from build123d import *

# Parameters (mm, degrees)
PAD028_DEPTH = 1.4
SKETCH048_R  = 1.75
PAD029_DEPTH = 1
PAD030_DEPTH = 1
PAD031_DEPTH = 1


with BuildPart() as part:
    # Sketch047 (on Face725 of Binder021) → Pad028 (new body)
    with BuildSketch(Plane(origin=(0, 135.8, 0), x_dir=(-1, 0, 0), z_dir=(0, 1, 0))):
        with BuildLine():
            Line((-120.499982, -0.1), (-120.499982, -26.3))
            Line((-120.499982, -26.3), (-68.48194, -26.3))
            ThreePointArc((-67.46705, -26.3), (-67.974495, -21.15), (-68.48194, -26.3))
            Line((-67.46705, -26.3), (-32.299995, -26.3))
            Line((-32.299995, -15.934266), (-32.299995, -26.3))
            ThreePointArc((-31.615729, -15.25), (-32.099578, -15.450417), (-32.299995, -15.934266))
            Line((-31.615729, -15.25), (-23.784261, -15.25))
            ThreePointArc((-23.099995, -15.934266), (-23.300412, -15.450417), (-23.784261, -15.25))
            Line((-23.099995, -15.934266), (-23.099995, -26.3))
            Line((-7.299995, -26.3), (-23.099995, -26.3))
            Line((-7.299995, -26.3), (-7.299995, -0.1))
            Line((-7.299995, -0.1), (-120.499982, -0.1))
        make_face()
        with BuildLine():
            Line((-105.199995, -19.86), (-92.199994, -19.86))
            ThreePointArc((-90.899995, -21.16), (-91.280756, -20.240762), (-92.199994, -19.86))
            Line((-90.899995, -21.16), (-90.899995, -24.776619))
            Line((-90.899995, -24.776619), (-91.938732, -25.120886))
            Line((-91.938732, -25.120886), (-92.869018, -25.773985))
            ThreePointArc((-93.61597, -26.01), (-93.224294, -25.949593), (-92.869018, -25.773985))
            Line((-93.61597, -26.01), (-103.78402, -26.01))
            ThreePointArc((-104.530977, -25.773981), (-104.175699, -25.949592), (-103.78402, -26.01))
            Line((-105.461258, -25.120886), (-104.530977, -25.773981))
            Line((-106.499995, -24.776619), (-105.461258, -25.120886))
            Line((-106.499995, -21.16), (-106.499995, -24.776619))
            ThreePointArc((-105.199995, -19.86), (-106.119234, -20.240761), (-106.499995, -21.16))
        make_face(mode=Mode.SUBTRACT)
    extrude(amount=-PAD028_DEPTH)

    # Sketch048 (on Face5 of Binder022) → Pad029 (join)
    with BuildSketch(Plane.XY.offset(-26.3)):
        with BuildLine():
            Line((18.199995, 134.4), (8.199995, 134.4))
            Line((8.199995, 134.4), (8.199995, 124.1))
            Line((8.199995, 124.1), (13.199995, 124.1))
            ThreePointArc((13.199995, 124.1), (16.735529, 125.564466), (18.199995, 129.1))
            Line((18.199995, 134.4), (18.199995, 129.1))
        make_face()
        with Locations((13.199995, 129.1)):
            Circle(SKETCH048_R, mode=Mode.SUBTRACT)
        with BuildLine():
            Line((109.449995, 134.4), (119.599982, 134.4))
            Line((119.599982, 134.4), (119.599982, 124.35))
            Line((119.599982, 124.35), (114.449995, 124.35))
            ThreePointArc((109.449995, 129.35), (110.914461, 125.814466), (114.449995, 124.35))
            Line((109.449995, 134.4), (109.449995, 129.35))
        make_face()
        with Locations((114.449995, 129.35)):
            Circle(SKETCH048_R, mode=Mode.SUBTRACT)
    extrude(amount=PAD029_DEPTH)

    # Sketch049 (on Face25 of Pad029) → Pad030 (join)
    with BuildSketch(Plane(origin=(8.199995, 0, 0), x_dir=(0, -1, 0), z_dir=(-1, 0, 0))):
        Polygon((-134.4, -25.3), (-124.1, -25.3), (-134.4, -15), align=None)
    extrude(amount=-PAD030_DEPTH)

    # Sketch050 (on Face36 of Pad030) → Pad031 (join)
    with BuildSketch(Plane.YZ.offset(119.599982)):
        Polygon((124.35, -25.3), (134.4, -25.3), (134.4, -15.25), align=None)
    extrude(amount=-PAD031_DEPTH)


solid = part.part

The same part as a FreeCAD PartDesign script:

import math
import FreeCAD as App
import Part
import Sketcher


def add_polygon(sketch, points):
    """Adds a closed chain of lines whose ends are joined by coincident constraints."""
    first, n = sketch.GeometryCount, len(points)
    for a, b in zip(points, points[1:] + points[:1]):
        sketch.addGeometry(Part.LineSegment(App.Vector(*a, 0), App.Vector(*b, 0)), False)
    for i in range(n):
        sketch.addConstraint(Sketcher.Constraint("Coincident", first + i, 2, first + (i + 1) % n, 1))

doc = App.newDocument("Part")
body = doc.addObject("PartDesign::Body", "Body")

sketch1 = body.newObject("Sketcher::SketchObject", "Sketch")
sketch1.AttachmentSupport = (doc.getObject("XZ_Plane"), [""])
sketch1.MapMode = "FlatFace"
sketch1.AttachmentOffset = App.Placement(App.Vector(0, 0, -135.8), App.Rotation())
sketch1.addGeometry(Part.LineSegment(App.Vector(120.5, -0.1, 0), App.Vector(120.5, -26.3, 0)), False)
sketch1.addGeometry(Part.LineSegment(App.Vector(120.5, -26.3, 0), App.Vector(68.5, -26.3, 0)), False)
sketch1.addGeometry(Part.ArcOfCircle(Part.Circle(App.Vector(68, -23.8, 0), App.Vector(0, 0, 1), 2.6), math.radians(-79), math.radians(259)), False)
sketch1.addGeometry(Part.LineSegment(App.Vector(67.5, -26.3, 0), App.Vector(32.3, -26.3, 0)), False)
sketch1.addGeometry(Part.LineSegment(App.Vector(32.3, -26.3, 0), App.Vector(32.3, -15.9, 0)), False)
sketch1.addGeometry(Part.ArcOfCircle(Part.Circle(App.Vector(31.6, -15.9, 0), App.Vector(0, 0, 1), 0.7), math.radians(0), math.radians(90)), False)
sketch1.addGeometry(Part.LineSegment(App.Vector(31.6, -15.2, 0), App.Vector(23.8, -15.2, 0)), False)
sketch1.addGeometry(Part.ArcOfCircle(Part.Circle(App.Vector(23.8, -15.9, 0), App.Vector(0, 0, 1), 0.7), math.radians(90), math.radians(180)), False)
sketch1.addGeometry(Part.LineSegment(App.Vector(23.1, -15.9, 0), App.Vector(23.1, -26.3, 0)), False)
sketch1.addGeometry(Part.LineSegment(App.Vector(23.1, -26.3, 0), App.Vector(7.3, -26.3, 0)), False)
sketch1.addGeometry(Part.LineSegment(App.Vector(7.3, -26.3, 0), App.Vector(7.3, -0.1, 0)), False)
sketch1.addGeometry(Part.LineSegment(App.Vector(7.3, -0.1, 0), App.Vector(120.5, -0.1, 0)), False)
sketch1.addGeometry(Part.ArcOfCircle(Part.Circle(App.Vector(105.2, -21.2, 0), App.Vector(0, 0, 1), 1.3), math.radians(0), math.radians(90)), False)
sketch1.addGeometry(Part.LineSegment(App.Vector(105.2, -19.9, 0), App.Vector(92.2, -19.9, 0)), False)
sketch1.addGeometry(Part.ArcOfCircle(Part.Circle(App.Vector(92.2, -21.2, 0), App.Vector(0, 0, 1), 1.3), math.radians(90), math.radians(180)), False)
sketch1.addGeometry(Part.LineSegment(App.Vector(90.9, -21.2, 0), App.Vector(90.9, -24.8, 0)), False)
sketch1.addGeometry(Part.LineSegment(App.Vector(90.9, -24.8, 0), App.Vector(91.9, -25.1, 0)), False)
sketch1.addGeometry(Part.LineSegment(App.Vector(91.9, -25.1, 0), App.Vector(92.9, -25.8, 0)), False)
sketch1.addGeometry(Part.ArcOfCircle(Part.Circle(App.Vector(93.6, -24.7, 0), App.Vector(0, 0, 1), 1.3), math.radians(-125), math.radians(-90)), False)
sketch1.addGeometry(Part.LineSegment(App.Vector(93.6, -26, 0), App.Vector(103.8, -26, 0)), False)
sketch1.addGeometry(Part.ArcOfCircle(Part.Circle(App.Vector(103.8, -24.7, 0), App.Vector(0, 0, 1), 1.3), math.radians(-90), math.radians(-55)), False)
sketch1.addGeometry(Part.LineSegment(App.Vector(104.5, -25.8, 0), App.Vector(105.5, -25.1, 0)), False)
sketch1.addGeometry(Part.LineSegment(App.Vector(105.5, -25.1, 0), App.Vector(106.5, -24.8, 0)), False)
sketch1.addGeometry(Part.LineSegment(App.Vector(106.5, -24.8, 0), App.Vector(106.5, -21.2, 0)), False)
sketch1.addConstraint(Sketcher.Constraint("Coincident", 0, 2, 1, 1))
sketch1.addConstraint(Sketcher.Constraint("Coincident", 1, 2, 2, 1))
sketch1.addConstraint(Sketcher.Constraint("Coincident", 2, 2, 3, 1))
sketch1.addConstraint(Sketcher.Constraint("Coincident", 3, 2, 4, 1))
sketch1.addConstraint(Sketcher.Constraint("Tangent", 4, 2, 5, 1))
sketch1.addConstraint(Sketcher.Constraint("Tangent", 5, 2, 6, 1))
sketch1.addConstraint(Sketcher.Constraint("Tangent", 6, 2, 7, 1))
sketch1.addConstraint(Sketcher.Constraint("Tangent", 7, 2, 8, 1))
sketch1.addConstraint(Sketcher.Constraint("Coincident", 8, 2, 9, 1))
sketch1.addConstraint(Sketcher.Constraint("Coincident", 9, 2, 10, 1))
sketch1.addConstraint(Sketcher.Constraint("Coincident", 10, 2, 11, 1))
sketch1.addConstraint(Sketcher.Constraint("Coincident", 11, 2, 0, 1))
sketch1.addConstraint(Sketcher.Constraint("Tangent", 12, 2, 13, 1))
sketch1.addConstraint(Sketcher.Constraint("Tangent", 13, 2, 14, 1))
sketch1.addConstraint(Sketcher.Constraint("Tangent", 14, 2, 15, 1))
sketch1.addConstraint(Sketcher.Constraint("Coincident", 15, 2, 16, 1))
sketch1.addConstraint(Sketcher.Constraint("Coincident", 16, 2, 17, 1))
sketch1.addConstraint(Sketcher.Constraint("Coincident", 17, 2, 18, 1))
sketch1.addConstraint(Sketcher.Constraint("Tangent", 18, 2, 19, 1))
sketch1.addConstraint(Sketcher.Constraint("Tangent", 19, 2, 20, 1))
sketch1.addConstraint(Sketcher.Constraint("Tangent", 20, 2, 21, 1))
sketch1.addConstraint(Sketcher.Constraint("Coincident", 21, 2, 22, 1))
sketch1.addConstraint(Sketcher.Constraint("Coincident", 22, 2, 23, 1))
sketch1.addConstraint(Sketcher.Constraint("Tangent", 23, 2, 12, 1))
sketch1.addConstraint(Sketcher.Constraint("Vertical", 0))
sketch1.addConstraint(Sketcher.Constraint("Horizontal", 1))
sketch1.addConstraint(Sketcher.Constraint("Horizontal", 3))
sketch1.addConstraint(Sketcher.Constraint("Vertical", 4))
sketch1.addConstraint(Sketcher.Constraint("Horizontal", 6))
sketch1.addConstraint(Sketcher.Constraint("Vertical", 8))
sketch1.addConstraint(Sketcher.Constraint("Horizontal", 9))
sketch1.addConstraint(Sketcher.Constraint("Vertical", 10))
sketch1.addConstraint(Sketcher.Constraint("Horizontal", 11))
sketch1.addConstraint(Sketcher.Constraint("Horizontal", 13))
sketch1.addConstraint(Sketcher.Constraint("Vertical", 15))
sketch1.addConstraint(Sketcher.Constraint("Horizontal", 19))
sketch1.addConstraint(Sketcher.Constraint("Vertical", 23))
sketch1.addConstraint(Sketcher.Constraint("Equal", 5, 7))
sketch1.addConstraint(Sketcher.Constraint("Equal", 12, 14))
sketch1.addConstraint(Sketcher.Constraint("Equal", 12, 18))
sketch1.addConstraint(Sketcher.Constraint("Horizontal", 1, 2, 2, 2))
sketch1.addConstraint(Sketcher.Constraint("Horizontal", 3, 2, 8, 2))
sketch1.addConstraint(Sketcher.Constraint("Horizontal", 16, 2, 21, 2))
sketch1.addConstraint(Sketcher.Constraint("Horizontal", 15, 2, 22, 2))
sketch1.addConstraint(Sketcher.Constraint("Equal", 16, 22))
sketch1.addConstraint(Sketcher.Constraint("Radius", 2, 2.6))
sketch1.addConstraint(Sketcher.Constraint("Radius", 12, 1.299999))
sketch1.addConstraint(Sketcher.Constraint("DistanceX", 13, 2, 13, 1, 13.000001))
sketch1.addConstraint(Sketcher.Constraint("DistanceX", 9, 2, 9, 1, 15.8))
sketch1.addConstraint(Sketcher.Constraint("DistanceY", 0, 2, 0, 1, 26.2))
sketch1.addConstraint(Sketcher.Constraint("DistanceX", 9, 2, 3, 2, 25.0))
sketch1.addConstraint(Sketcher.Constraint("DistanceY", 0, 2, -1, 1, 26.3))
sketch1.addConstraint(Sketcher.Constraint("DistanceY", 2, 3, 5, 2, 8.5))
sketch1.addConstraint(Sketcher.Constraint("DistanceY", 2, 3, -1, 1, 23.75))
sketch1.addConstraint(Sketcher.Constraint("DistanceY", 12, 3, -1, 1, 21.159999))
sketch1.addConstraint(Sketcher.Constraint("DistanceY", 18, 3, -1, 1, 24.710001))
sketch1.addConstraint(Sketcher.Constraint("Radius", 5, 0.684266))
sketch1.addConstraint(Sketcher.Constraint("Radius", 20, 1.299995))
sketch1.addConstraint(Sketcher.Constraint("Distance", 16, 1.094301))
sketch1.addConstraint(Sketcher.Constraint("DistanceX", 19, 1, 19, 2, 10.16805))
sketch1.addConstraint(Sketcher.Constraint("DistanceY", 15, 2, 15, 1, 3.616619))
sketch1.addConstraint(Sketcher.Constraint("DistanceX", 2, 3, 12, 3, 37.225501))
sketch1.addConstraint(Sketcher.Constraint("DistanceX", 3, 2, 2, 3, 35.6745))
sketch1.addConstraint(Sketcher.Constraint("DistanceY", 17, 2, 16, 2, 0.653099))
sketch1.addConstraint(Sketcher.Constraint("Distance", 17, 1.136649))
sketch1.addConstraint(Sketcher.Constraint("DistanceX", 1, 2, 1, 1, 52.018042))
sketch1.addConstraint(Sketcher.Constraint("DistanceX", -1, 1, 5, 3, 31.615729))
sketch1.addConstraint(Sketcher.Constraint("DistanceX", -1, 1, 18, 3, 93.615969))
pad1 = body.newObject("PartDesign::Pad", "Pad")
pad1.Profile = sketch1
pad1.Length = 1.4

sketch2 = body.newObject("Sketcher::SketchObject", "Sketch001")
sketch2.AttachmentSupport = (doc.getObject("XY_Plane"), [""])
sketch2.MapMode = "FlatFace"
sketch2.AttachmentOffset = App.Placement(App.Vector(0, 0, -26.3), App.Rotation())
sketch2.addGeometry(Part.LineSegment(App.Vector(18.2, 134.4, 0), App.Vector(8.2, 134.4, 0)), False)
sketch2.addGeometry(Part.LineSegment(App.Vector(8.2, 134.4, 0), App.Vector(8.2, 124.1, 0)), False)
sketch2.addGeometry(Part.LineSegment(App.Vector(8.2, 124.1, 0), App.Vector(13.2, 124.1, 0)), False)
sketch2.addGeometry(Part.ArcOfCircle(Part.Circle(App.Vector(13.2, 129.1, 0), App.Vector(0, 0, 1), 5), math.radians(-90), math.radians(0)), False)
sketch2.addGeometry(Part.LineSegment(App.Vector(18.2, 129.1, 0), App.Vector(18.2, 134.4, 0)), False)
sketch2.addGeometry(Part.Circle(App.Vector(13.2, 129.1, 0), App.Vector(0, 0, 1), 1.8), False)
sketch2.addGeometry(Part.LineSegment(App.Vector(119.6, 134.4, 0), App.Vector(109.4, 134.4, 0)), False)
sketch2.addGeometry(Part.LineSegment(App.Vector(109.4, 134.4, 0), App.Vector(109.4, 129.3, 0)), False)
sketch2.addGeometry(Part.ArcOfCircle(Part.Circle(App.Vector(114.4, 129.3, 0), App.Vector(0, 0, 1), 5), math.radians(180), math.radians(270)), False)
sketch2.addGeometry(Part.LineSegment(App.Vector(114.4, 124.3, 0), App.Vector(119.6, 124.3, 0)), False)
sketch2.addGeometry(Part.LineSegment(App.Vector(119.6, 124.3, 0), App.Vector(119.6, 134.4, 0)), False)
sketch2.addGeometry(Part.Circle(App.Vector(114.4, 129.3, 0), App.Vector(0, 0, 1), 1.8), False)
sketch2.addConstraint(Sketcher.Constraint("Coincident", 0, 2, 1, 1))
sketch2.addConstraint(Sketcher.Constraint("Coincident", 1, 2, 2, 1))
sketch2.addConstraint(Sketcher.Constraint("Tangent", 2, 2, 3, 1))
sketch2.addConstraint(Sketcher.Constraint("Tangent", 3, 2, 4, 1))
sketch2.addConstraint(Sketcher.Constraint("Coincident", 4, 2, 0, 1))
sketch2.addConstraint(Sketcher.Constraint("Coincident", 6, 2, 7, 1))
sketch2.addConstraint(Sketcher.Constraint("Tangent", 7, 2, 8, 1))
sketch2.addConstraint(Sketcher.Constraint("Tangent", 8, 2, 9, 1))
sketch2.addConstraint(Sketcher.Constraint("Coincident", 9, 2, 10, 1))
sketch2.addConstraint(Sketcher.Constraint("Coincident", 10, 2, 6, 1))
sketch2.addConstraint(Sketcher.Constraint("Horizontal", 0))
sketch2.addConstraint(Sketcher.Constraint("Vertical", 1))
sketch2.addConstraint(Sketcher.Constraint("Horizontal", 2))
sketch2.addConstraint(Sketcher.Constraint("Vertical", 4))
sketch2.addConstraint(Sketcher.Constraint("Horizontal", 6))
sketch2.addConstraint(Sketcher.Constraint("Vertical", 7))
sketch2.addConstraint(Sketcher.Constraint("Horizontal", 9))
sketch2.addConstraint(Sketcher.Constraint("Vertical", 10))
sketch2.addConstraint(Sketcher.Constraint("Coincident", 5, 3, 3, 3))
sketch2.addConstraint(Sketcher.Constraint("Coincident", 11, 3, 8, 3))
sketch2.addConstraint(Sketcher.Constraint("Equal", 3, 8))
sketch2.addConstraint(Sketcher.Constraint("Equal", 5, 11))
sketch2.addConstraint(Sketcher.Constraint("Horizontal", 4, 2, 6, 2))
sketch2.addConstraint(Sketcher.Constraint("Radius", 3, 5.0))
sketch2.addConstraint(Sketcher.Constraint("Diameter", 5, 3.5))
sketch2.addConstraint(Sketcher.Constraint("DistanceX", 0, 2, 0, 1, 10.0))
sketch2.addConstraint(Sketcher.Constraint("DistanceY", 1, 2, 1, 1, 10.3))
sketch2.addConstraint(Sketcher.Constraint("DistanceY", 7, 2, 7, 1, 5.05))
sketch2.addConstraint(Sketcher.Constraint("DistanceY", -1, 1, 3, 3, 129.1))
sketch2.addConstraint(Sketcher.Constraint("DistanceX", 3, 3, 8, 3, 101.249999))
sketch2.addConstraint(Sketcher.Constraint("DistanceX", 6, 2, 6, 1, 10.149987))
sketch2.addConstraint(Sketcher.Constraint("DistanceX", -1, 1, 9, 2, 119.599982))
pad2 = body.newObject("PartDesign::Pad", "Pad001")
pad2.Profile = sketch2
pad2.Length = 1

sketch3 = body.newObject("Sketcher::SketchObject", "Sketch002")
sketch3.AttachmentSupport = (doc.getObject("YZ_Plane"), [""])
sketch3.MapMode = "FlatFace"
sketch3.AttachmentOffset = App.Placement(App.Vector(0, 0, 8.199995), App.Rotation())
add_polygon(sketch3, [(134, -25), (124, -25), (134, -15)])
sketch3.addConstraint(Sketcher.Constraint("Horizontal", 0))
sketch3.addConstraint(Sketcher.Constraint("Vertical", 2))
sketch3.addConstraint(Sketcher.Constraint("Equal", 0, 2))
sketch3.addConstraint(Sketcher.Constraint("DistanceX", 0, 2, 0, 1, 10.3))
sketch3.addConstraint(Sketcher.Constraint("DistanceY", 1, 2, -1, 1, 15.0))
sketch3.addConstraint(Sketcher.Constraint("DistanceX", -1, 1, 0, 2, 124.1))
pad3 = body.newObject("PartDesign::Pad", "Pad002")
pad3.Profile = sketch3
pad3.Length = 1

sketch4 = body.newObject("Sketcher::SketchObject", "Sketch003")
sketch4.AttachmentSupport = (doc.getObject("YZ_Plane"), [""])
sketch4.MapMode = "FlatFace"
sketch4.AttachmentOffset = App.Placement(App.Vector(0, 0, 119.599982), App.Rotation())
add_polygon(sketch4, [(124, -25), (134, -25), (134, -15)])
sketch4.addConstraint(Sketcher.Constraint("Horizontal", 0))
sketch4.addConstraint(Sketcher.Constraint("Vertical", 1))
sketch4.addConstraint(Sketcher.Constraint("Equal", 0, 1))
sketch4.addConstraint(Sketcher.Constraint("DistanceX", 0, 1, 0, 2, 10.05))
sketch4.addConstraint(Sketcher.Constraint("DistanceX", -1, 1, 0, 2, 134.4))
sketch4.addConstraint(Sketcher.Constraint("DistanceY", 0, 2, -1, 1, 25.3))
pad4 = body.newObject("PartDesign::Pad", "Pad003")
pad4.Profile = sketch4
pad4.Length = 1
pad4.Reversed = True

doc.recompute()
